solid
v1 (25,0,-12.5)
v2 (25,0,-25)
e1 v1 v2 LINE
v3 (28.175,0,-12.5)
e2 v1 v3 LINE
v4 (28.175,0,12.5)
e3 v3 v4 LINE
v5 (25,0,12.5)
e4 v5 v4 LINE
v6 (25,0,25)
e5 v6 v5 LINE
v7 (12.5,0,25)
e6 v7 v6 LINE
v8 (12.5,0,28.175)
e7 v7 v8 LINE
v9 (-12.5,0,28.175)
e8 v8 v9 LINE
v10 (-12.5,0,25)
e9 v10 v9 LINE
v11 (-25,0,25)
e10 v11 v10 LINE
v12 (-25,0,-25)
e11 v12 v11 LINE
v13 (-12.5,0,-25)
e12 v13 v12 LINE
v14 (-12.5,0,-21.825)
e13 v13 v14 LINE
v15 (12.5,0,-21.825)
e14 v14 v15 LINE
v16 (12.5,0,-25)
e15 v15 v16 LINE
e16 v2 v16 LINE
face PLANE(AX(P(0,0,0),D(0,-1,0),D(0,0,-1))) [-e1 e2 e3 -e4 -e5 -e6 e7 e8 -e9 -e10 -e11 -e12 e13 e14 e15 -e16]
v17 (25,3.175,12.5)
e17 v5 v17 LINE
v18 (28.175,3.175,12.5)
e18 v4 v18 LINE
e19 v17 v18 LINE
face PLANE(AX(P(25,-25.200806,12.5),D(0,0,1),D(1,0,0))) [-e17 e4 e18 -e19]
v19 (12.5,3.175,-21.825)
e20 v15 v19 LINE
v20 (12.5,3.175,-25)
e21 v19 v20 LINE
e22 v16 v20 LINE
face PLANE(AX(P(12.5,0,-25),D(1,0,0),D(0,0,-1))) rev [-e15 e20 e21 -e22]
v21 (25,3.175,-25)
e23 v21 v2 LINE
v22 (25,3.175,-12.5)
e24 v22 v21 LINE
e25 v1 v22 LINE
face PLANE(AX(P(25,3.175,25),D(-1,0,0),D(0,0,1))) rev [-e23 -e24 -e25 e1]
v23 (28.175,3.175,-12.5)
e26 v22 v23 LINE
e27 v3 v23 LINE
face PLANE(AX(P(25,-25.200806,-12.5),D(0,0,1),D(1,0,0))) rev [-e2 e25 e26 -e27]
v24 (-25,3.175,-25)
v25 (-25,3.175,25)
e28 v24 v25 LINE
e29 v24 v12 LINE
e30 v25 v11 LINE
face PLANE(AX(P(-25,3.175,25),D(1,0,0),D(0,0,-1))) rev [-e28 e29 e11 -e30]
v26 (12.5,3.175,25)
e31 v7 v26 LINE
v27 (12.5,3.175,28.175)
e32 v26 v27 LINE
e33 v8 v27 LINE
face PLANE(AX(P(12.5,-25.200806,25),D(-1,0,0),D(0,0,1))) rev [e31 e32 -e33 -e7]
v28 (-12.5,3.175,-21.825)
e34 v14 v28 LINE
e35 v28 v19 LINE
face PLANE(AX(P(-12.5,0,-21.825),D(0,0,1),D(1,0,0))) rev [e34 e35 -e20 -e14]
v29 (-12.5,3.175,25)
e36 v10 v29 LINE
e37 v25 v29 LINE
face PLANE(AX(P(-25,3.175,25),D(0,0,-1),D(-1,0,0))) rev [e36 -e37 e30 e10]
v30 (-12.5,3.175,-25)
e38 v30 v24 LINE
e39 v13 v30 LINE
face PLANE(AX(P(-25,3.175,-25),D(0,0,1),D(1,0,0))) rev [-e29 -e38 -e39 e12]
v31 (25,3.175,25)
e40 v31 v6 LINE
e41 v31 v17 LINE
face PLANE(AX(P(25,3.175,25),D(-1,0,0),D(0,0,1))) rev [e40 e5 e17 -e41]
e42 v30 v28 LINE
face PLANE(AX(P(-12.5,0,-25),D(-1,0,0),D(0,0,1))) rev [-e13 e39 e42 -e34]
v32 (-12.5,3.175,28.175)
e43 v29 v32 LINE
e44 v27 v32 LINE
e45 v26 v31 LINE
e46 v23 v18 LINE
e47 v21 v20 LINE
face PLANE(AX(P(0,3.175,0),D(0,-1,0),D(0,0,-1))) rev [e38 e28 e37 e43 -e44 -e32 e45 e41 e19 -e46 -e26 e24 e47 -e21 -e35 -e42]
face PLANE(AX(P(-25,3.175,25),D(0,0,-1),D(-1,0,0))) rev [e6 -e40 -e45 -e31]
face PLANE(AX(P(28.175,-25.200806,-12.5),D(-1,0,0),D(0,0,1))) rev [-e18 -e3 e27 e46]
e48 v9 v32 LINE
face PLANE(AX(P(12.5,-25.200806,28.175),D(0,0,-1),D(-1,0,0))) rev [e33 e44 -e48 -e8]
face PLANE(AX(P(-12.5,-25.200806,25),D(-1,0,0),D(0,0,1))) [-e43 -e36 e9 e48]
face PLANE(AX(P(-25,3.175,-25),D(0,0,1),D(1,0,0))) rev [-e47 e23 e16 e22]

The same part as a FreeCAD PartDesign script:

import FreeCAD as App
import Part
import Sketcher
from FreeCAD import Vector
Q = App.Units.Quantity


def add_polygon(sketch, points):
    """Adds a closed chain of lines whose ends are joined by coincident constraints."""
    first, n = sketch.GeometryCount, len(points)
    for a, b in zip(points, points[1:] + points[:1]):
        sketch.addGeometry(Part.LineSegment(App.Vector(*a, 0), App.Vector(*b, 0)), False)
    for i in range(n):
        sketch.addConstraint(Sketcher.Constraint("Coincident", first + i, 2, first + (i + 1) % n, 1))

doc = App.newDocument("Part")
params = doc.addObject("Spreadsheet::Sheet", "Params")
for row, (alias, value) in enumerate([
    ("sketch1_width", "50 mm"),
    ("pad1_length", "3.175 mm"),
    ("sketch2_width", "25 mm"),
    ("pad2_length", "3.175 mm"),
    ("sketch3_width", "25 mm"),
    ("pocket1_length", "3.175 mm"),
], start=1):
    params.set(f"A{row}", alias)
    params.set(f"B{row}", "=" + value)
    params.setAlias(f"B{row}", alias)

body = doc.addObject("PartDesign::Body", "Body")

# Sketch on XZ plane
sketch1 = body.newObject("Sketcher::SketchObject", "Sketch")
sketch1.AttachmentSupport = (doc.getObject("XZ_Plane"), [""])
sketch1.MapMode = "FlatFace"
add_polygon(sketch1, [(-25, -25), (-25, 25), (25, 25), (25, -25)])  # lines 0-3
sketch1.addConstraint(Sketcher.Constraint("Vertical", 0))
sketch1.addConstraint(Sketcher.Constraint("Horizontal", 1))
sketch1.addConstraint(Sketcher.Constraint("Vertical", 2))
sketch1.addConstraint(Sketcher.Constraint("Horizontal", 3))
sketch1.addConstraint(Sketcher.Constraint("Symmetric", 0, 2, 2, 2, -1, 1))
sketch1.addConstraint(Sketcher.Constraint("Equal", 3, 0))
sketch1.addConstraint(Sketcher.Constraint("DistanceX", 1, 1, 1, 2, Q("50 mm")))
sketch1.setExpression("Constraints[10]", "Params.sketch1_width")
pad1 = body.newObject("PartDesign::Pad", "Pad")
pad1.Profile = sketch1
pad1.setExpression("Length", "Params.pad1_length")
pad1.Reversed = True

# Sketch on XZ plane
sketch2 = body.newObject("Sketcher::SketchObject", "Sketch001")
sketch2.AttachmentSupport = (doc.getObject("XZ_Plane"), [""])
sketch2.MapMode = "FlatFace"
sketch2.AttachmentOffset = App.Placement(Vector(0, 0, -3.175), App.Rotation())
add_polygon(sketch2, [(25, -12.5), (25, 12.5), (28.2, 12.5), (28.2, -12.5)])  # lines 0-3
add_polygon(sketch2, [(-12.5, 25), (-12.5, 28.2), (12.5, 28.2), (12.5, 25)])  # lines 4-7
sketch2.addConstraint(Sketcher.Constraint("Vertical", 0))
sketch2.addConstraint(Sketcher.Constraint("Horizontal", 1))
sketch2.addConstraint(Sketcher.Constraint("Vertical", 2))
sketch2.addConstraint(Sketcher.Constraint("Horizontal", 3))
sketch2.addConstraint(Sketcher.Constraint("Vertical", 4))
sketch2.addConstraint(Sketcher.Constraint("Horizontal", 5))
sketch2.addConstraint(Sketcher.Constraint("Vertical", 6))
sketch2.addConstraint(Sketcher.Constraint("Horizontal", 7))
sketch2.addConstraint(Sketcher.Constraint("Equal", 7, 0))
sketch2.addConstraint(Sketcher.Constraint("Equal", 3, 4))
sketch2.addConstraint(Sketcher.Constraint("DistanceX", 5, 1, 5, 2, Q("25 mm")))
sketch2.addConstraint(Sketcher.Constraint("DistanceX", -1, 1, 0, 2, Q("25 mm")))
sketch2.addConstraint(Sketcher.Constraint("DistanceY", -1, 1, 6, 2, Q("25 mm")))
sketch2.addConstraint(Sketcher.Constraint("DistanceY", -1, 1, 0, 2, Q("12.5 mm")))
sketch2.addConstraint(Sketcher.Constraint("DistanceX", 4, 2, -1, 1, Q("12.5 mm")))
sketch2.addConstraint(Sketcher.Constraint("DistanceX", 1, 1, 1, 2, Q("3.175 mm")))
sketch2.setExpression("Constraints[18]", "Params.sketch2_width")
pad2 = body.newObject("PartDesign::Pad", "Pad001")
pad2.Profile = sketch2
pad2.setExpression("Length", "Params.pad2_length")

# Sketch on XZ plane
sketch3 = body.newObject("Sketcher::SketchObject", "Sketch002")
sketch3.AttachmentSupport = (doc.getObject("XZ_Plane"), [""])
sketch3.MapMode = "FlatFace"
sketch3.AttachmentOffset = App.Placement(Vector(0, 0, -3.175), App.Rotation())
add_polygon(sketch3, [(-12.5, -25), (-12.5, -21.8), (12.5, -21.8), (12.5, -25)])  # lines 0-3
sketch3.addConstraint(Sketcher.Constraint("Vertical", 0))
sketch3.addConstraint(Sketcher.Constraint("Horizontal", 1))
sketch3.addConstraint(Sketcher.Constraint("Vertical", 2))
sketch3.addConstraint(Sketcher.Constraint("Horizontal", 3))
sketch3.addConstraint(Sketcher.Constraint("DistanceX", 1, 1, 1, 2, Q("25 mm")))
sketch3.addConstraint(Sketcher.Constraint("DistanceY", 2, 2, -1, 1, Q("25 mm")))
sketch3.addConstraint(Sketcher.Constraint("DistanceX", 0, 2, -1, 1, Q("12.5 mm")))
sketch3.addConstraint(Sketcher.Constraint("DistanceY", 0, 1, 0, 2, Q("3.175 mm")))
sketch3.setExpression("Constraints[8]", "Params.sketch3_width")
pocket1 = body.newObject("PartDesign::Pocket", "Pocket")
pocket1.Profile = sketch3
pocket1.setExpression("Length", "Params.pocket1_length")
pocket1.Reversed = True

doc.recompute()
